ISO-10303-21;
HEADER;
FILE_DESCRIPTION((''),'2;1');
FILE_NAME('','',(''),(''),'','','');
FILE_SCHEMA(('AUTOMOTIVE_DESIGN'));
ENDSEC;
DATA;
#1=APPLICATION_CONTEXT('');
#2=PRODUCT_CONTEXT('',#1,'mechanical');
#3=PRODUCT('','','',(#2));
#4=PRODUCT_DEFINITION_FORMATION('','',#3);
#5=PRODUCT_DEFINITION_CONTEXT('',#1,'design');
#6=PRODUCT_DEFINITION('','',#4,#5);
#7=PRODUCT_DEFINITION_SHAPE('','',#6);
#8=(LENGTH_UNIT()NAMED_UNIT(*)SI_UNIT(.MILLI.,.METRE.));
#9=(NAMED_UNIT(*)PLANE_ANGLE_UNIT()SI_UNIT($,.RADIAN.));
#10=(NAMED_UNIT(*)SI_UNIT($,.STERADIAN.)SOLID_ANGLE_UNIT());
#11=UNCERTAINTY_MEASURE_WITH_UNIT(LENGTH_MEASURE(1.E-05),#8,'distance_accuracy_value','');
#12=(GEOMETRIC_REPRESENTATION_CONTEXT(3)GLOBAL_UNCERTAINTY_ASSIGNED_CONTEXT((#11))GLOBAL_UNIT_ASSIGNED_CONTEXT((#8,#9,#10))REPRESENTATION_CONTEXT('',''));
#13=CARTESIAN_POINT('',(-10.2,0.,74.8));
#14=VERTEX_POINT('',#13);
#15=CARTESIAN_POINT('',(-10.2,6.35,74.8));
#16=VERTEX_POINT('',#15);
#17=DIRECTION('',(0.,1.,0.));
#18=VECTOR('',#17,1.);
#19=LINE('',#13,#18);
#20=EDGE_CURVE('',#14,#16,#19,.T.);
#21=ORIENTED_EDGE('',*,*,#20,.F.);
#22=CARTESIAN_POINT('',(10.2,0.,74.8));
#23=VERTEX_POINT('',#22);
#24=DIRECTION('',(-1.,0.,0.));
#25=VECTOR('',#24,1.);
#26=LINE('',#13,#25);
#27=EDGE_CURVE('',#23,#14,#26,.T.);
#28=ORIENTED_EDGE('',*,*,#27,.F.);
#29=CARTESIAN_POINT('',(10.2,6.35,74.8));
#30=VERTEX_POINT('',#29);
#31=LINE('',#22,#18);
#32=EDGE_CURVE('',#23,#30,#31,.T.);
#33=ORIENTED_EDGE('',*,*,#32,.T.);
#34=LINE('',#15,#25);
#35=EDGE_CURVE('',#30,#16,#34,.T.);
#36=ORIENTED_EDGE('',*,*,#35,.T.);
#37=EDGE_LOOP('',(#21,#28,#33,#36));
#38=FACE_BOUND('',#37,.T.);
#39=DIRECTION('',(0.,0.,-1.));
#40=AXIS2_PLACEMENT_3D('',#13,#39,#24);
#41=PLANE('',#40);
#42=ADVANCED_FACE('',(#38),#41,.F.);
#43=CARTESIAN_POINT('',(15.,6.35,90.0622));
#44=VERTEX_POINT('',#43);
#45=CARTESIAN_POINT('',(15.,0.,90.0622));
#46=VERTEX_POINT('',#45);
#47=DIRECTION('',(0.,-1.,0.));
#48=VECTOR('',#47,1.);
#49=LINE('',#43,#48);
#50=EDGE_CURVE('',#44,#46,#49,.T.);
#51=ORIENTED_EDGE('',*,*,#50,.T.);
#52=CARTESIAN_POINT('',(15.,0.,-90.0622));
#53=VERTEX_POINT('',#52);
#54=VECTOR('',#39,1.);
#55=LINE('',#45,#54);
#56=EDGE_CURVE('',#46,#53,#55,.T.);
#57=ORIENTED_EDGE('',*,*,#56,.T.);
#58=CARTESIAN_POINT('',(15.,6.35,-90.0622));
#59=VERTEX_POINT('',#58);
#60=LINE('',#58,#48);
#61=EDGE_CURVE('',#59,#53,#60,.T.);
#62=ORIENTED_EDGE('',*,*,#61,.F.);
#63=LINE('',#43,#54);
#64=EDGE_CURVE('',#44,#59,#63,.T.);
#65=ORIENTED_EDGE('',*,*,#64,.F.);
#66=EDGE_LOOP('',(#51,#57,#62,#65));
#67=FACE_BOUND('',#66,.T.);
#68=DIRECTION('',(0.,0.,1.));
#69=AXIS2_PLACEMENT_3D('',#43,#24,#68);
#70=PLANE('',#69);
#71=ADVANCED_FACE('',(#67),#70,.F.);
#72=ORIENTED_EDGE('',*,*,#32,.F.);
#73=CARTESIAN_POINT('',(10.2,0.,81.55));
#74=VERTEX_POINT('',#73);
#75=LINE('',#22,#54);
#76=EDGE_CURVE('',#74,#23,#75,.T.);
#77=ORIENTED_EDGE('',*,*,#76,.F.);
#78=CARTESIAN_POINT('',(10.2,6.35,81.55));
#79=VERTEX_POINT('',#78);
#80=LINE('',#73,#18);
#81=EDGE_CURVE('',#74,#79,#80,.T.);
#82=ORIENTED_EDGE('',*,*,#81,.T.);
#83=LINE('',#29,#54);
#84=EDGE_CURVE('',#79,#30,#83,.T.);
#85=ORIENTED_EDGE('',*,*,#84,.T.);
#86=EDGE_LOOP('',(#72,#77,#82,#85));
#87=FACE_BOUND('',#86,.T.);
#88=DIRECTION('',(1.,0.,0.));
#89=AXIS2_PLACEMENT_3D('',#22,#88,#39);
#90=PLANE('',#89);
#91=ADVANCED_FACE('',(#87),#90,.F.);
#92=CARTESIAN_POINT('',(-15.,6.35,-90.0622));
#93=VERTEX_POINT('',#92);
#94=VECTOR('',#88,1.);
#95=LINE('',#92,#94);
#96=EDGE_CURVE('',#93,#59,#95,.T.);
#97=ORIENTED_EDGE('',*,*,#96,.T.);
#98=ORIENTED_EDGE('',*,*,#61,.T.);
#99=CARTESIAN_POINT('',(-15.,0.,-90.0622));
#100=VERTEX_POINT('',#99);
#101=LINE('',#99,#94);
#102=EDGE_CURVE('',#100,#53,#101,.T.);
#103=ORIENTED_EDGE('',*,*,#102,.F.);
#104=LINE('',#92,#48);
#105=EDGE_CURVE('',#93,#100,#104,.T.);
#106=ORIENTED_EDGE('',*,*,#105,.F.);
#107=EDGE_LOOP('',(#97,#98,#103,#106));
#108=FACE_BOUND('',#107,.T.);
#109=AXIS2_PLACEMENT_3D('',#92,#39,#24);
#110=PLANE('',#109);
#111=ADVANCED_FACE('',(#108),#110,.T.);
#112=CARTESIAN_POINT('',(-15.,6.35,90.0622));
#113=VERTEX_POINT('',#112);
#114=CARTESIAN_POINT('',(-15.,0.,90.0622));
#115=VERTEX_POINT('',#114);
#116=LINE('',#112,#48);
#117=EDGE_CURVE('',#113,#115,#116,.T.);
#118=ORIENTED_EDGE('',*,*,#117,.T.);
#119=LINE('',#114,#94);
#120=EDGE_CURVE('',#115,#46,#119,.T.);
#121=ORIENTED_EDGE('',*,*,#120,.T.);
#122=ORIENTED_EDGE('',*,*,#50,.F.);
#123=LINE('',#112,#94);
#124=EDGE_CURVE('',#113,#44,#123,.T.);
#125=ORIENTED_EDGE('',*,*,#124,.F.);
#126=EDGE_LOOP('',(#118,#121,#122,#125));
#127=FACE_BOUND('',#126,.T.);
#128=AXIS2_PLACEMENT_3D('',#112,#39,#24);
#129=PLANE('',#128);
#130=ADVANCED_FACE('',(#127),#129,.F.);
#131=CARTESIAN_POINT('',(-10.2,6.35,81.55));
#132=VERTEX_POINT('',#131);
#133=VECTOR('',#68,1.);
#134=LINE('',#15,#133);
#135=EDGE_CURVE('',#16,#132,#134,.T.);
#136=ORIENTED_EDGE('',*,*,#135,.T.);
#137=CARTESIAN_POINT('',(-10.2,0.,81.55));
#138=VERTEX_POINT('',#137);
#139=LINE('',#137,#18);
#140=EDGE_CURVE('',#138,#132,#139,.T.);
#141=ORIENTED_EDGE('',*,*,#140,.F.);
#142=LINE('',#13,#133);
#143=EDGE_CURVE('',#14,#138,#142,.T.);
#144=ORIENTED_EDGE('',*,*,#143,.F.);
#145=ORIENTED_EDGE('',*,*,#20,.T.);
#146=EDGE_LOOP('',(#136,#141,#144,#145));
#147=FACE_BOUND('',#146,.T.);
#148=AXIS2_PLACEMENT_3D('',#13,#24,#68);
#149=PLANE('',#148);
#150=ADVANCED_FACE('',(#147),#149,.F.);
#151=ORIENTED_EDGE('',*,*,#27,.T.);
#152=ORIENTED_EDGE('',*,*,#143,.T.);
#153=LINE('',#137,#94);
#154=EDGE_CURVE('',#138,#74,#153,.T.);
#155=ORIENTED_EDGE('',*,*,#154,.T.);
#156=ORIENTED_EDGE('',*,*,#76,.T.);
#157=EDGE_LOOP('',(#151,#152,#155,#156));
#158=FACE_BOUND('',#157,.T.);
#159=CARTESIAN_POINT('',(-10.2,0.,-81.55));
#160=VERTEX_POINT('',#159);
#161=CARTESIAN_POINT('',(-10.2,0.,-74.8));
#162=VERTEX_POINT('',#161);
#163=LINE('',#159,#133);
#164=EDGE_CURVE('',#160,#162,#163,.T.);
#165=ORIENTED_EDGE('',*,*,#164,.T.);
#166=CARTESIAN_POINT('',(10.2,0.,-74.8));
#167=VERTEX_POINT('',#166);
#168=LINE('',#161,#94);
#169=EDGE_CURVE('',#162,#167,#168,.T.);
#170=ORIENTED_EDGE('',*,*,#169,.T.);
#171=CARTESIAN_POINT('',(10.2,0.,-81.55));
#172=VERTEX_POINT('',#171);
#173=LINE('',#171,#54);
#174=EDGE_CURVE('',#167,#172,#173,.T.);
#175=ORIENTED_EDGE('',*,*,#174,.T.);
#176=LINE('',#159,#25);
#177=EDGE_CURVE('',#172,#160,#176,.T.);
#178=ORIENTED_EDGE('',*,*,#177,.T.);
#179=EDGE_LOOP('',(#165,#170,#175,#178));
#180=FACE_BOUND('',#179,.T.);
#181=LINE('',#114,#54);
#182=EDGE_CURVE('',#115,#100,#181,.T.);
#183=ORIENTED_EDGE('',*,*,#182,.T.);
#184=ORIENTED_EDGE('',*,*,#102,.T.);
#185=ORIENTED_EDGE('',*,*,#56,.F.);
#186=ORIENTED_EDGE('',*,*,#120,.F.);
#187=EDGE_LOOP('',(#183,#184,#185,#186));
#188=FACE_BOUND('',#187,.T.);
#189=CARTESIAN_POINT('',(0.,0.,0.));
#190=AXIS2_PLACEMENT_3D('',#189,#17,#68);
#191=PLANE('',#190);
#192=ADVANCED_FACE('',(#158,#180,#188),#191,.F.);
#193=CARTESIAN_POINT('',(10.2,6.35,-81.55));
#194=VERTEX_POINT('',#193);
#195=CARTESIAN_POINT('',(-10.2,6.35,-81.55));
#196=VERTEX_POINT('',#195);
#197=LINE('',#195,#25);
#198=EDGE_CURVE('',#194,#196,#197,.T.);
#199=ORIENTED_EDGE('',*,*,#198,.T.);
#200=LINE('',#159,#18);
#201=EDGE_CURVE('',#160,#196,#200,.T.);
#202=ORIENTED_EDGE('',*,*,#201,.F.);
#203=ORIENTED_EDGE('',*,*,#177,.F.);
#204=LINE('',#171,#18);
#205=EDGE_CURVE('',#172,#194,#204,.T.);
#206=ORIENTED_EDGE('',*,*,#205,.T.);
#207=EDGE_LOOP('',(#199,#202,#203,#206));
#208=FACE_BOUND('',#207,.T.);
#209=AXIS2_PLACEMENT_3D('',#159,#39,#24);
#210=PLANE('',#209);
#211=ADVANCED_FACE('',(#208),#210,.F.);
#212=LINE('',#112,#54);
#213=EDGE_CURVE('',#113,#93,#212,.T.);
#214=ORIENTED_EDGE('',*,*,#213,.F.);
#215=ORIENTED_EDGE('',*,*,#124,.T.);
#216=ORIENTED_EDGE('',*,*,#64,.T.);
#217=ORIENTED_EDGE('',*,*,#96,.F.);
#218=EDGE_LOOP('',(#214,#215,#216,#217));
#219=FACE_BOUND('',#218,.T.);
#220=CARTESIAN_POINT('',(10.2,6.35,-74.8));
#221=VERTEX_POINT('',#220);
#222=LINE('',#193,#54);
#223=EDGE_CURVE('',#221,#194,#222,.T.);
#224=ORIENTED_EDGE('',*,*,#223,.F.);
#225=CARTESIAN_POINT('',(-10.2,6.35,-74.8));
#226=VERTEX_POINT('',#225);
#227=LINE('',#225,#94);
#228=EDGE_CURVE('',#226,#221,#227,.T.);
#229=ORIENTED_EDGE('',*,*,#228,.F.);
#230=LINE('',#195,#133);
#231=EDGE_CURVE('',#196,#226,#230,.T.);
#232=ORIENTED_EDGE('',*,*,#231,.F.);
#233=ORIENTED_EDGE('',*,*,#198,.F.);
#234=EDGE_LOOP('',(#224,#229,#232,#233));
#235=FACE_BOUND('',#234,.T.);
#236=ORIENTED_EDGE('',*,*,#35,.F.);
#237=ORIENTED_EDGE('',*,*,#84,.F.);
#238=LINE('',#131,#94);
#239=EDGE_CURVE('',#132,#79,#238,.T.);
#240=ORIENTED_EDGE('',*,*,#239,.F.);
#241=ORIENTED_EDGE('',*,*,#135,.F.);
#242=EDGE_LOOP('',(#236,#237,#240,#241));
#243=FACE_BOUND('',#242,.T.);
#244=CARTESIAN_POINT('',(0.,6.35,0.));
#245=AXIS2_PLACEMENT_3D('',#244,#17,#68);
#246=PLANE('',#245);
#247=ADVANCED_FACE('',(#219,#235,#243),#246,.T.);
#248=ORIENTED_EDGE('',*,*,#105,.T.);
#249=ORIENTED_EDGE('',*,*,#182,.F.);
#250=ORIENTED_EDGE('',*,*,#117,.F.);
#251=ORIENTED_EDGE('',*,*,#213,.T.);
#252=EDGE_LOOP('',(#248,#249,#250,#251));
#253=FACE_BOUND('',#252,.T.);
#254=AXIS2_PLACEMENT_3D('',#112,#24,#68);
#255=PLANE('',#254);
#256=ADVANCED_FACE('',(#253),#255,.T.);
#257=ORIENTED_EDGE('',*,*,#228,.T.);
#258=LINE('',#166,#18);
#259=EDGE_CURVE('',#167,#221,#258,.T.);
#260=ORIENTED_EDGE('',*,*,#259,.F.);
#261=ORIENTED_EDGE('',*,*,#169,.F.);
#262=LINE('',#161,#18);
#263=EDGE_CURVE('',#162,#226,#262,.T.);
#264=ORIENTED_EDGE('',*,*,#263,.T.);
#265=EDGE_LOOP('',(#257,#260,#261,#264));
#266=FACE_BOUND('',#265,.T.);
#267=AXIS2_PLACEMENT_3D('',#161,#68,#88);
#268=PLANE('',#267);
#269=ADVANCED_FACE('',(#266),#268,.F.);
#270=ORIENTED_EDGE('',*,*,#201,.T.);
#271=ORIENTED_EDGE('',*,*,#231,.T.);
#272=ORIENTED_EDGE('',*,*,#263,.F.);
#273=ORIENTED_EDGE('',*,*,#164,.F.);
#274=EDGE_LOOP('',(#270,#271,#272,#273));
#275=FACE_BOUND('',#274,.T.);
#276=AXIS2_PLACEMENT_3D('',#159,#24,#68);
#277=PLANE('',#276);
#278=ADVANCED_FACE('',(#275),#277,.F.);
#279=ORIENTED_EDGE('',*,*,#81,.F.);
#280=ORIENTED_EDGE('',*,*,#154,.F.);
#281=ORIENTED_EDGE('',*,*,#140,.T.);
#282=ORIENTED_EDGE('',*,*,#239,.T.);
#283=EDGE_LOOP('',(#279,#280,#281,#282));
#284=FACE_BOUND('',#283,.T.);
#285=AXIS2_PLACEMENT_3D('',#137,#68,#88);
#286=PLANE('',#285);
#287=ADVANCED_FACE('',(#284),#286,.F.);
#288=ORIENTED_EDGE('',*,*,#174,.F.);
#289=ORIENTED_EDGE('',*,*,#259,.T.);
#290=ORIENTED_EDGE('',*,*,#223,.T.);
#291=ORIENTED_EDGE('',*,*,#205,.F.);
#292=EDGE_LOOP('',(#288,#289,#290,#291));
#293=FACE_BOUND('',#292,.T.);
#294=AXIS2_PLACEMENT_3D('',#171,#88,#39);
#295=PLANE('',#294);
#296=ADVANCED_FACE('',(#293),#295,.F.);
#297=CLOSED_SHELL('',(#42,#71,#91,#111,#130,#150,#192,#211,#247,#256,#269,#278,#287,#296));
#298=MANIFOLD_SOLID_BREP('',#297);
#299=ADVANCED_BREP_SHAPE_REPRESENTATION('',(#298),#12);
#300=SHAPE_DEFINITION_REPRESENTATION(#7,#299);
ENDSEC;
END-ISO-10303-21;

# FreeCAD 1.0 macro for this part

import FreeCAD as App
import Part
import Sketcher

V = App.Vector


def add_polygon(sketch, points):
    """Adds a closed chain of lines whose ends are joined by coincident constraints."""
    first, n = sketch.GeometryCount, len(points)
    for a, b in zip(points, points[1:] + points[:1]):
        sketch.addGeometry(Part.LineSegment(App.Vector(*a, 0), App.Vector(*b, 0)), False)
    for i in range(n):
        sketch.addConstraint(Sketcher.Constraint("Coincident", first + i, 2, first + (i + 1) % n, 1))

doc = App.newDocument("Part")
body = doc.addObject("PartDesign::Body", "Body")

sketch1 = doc.addObject("Sketcher::SketchObject", "Sketch")
body.addObject(sketch1)
sketch1.AttachmentSupport = (doc.XZ_Plane, [""])
sketch1.MapMode = "FlatFace"
add_polygon(sketch1, [(-15, -90.0622), (-15, 90.0622), (15, 90.0622), (15, -90.0622)])
sketch1.addConstraint(Sketcher.Constraint("Vertical", 0))
sketch1.addConstraint(Sketcher.Constraint("Horizontal", 1))
sketch1.addConstraint(Sketcher.Constraint("Vertical", 2))
sketch1.addConstraint(Sketcher.Constraint("Horizontal", 3))
sketch1.addConstraint(Sketcher.Constraint("Symmetric", 0, 2, 2, 2, -1, 1))
sketch1.addConstraint(Sketcher.Constraint("DistanceX", 1, 1, 1, 2, 30.0))
sketch1.addConstraint(Sketcher.Constraint("DistanceY", 0, 1, 0, 2, 180.1244))
pad1 = doc.addObject("PartDesign::Pad", "Pad")
body.addObject(pad1)
pad1.Profile = sketch1
pad1.Length = 6.35
pad1.Reversed = True

sketch2 = doc.addObject("Sketcher::SketchObject", "Sketch001")
body.addObject(sketch2)
sketch2.AttachmentSupport = (doc.XZ_Plane, [""])
sketch2.MapMode = "FlatFace"
sketch2.AttachmentOffset = App.Placement(V(0, 0, -6.35), App.Rotation())
add_polygon(sketch2, [(-10.2, -81.55), (-10.2, -74.8), (10.2, -74.8), (10.2, -81.55)])
add_polygon(sketch2, [(-10.2, 74.8), (-10.2, 81.55), (10.2, 81.55), (10.2, 74.8)])
sketch2.addConstraint(Sketcher.Constraint("Vertical", 0))
sketch2.addConstraint(Sketcher.Constraint("Horizontal", 1))
sketch2.addConstraint(Sketcher.Constraint("Vertical", 2))
sketch2.addConstraint(Sketcher.Constraint("Horizontal", 3))
sketch2.addConstraint(Sketcher.Constraint("Vertical", 4))
sketch2.addConstraint(Sketcher.Constraint("Horizontal", 5))
sketch2.addConstraint(Sketcher.Constraint("Vertical", 6))
sketch2.addConstraint(Sketcher.Constraint("Horizontal", 7))
sketch2.addConstraint(Sketcher.Constraint("Symmetric", 2, 2, 4, 2, -1, 1))
sketch2.addConstraint(Sketcher.Constraint("Symmetric", 0, 2, 6, 2, -1, 1))
sketch2.addConstraint(Sketcher.Constraint("Vertical", 3, 2, 4, 2))
sketch2.addConstraint(Sketcher.Constraint("DistanceX", 1, 1, 1, 2, 20.4))
sketch2.addConstraint(Sketcher.Constraint("DistanceY", 0, 1, 0, 2, 6.75))
sketch2.addConstraint(Sketcher.Constraint("DistanceY", 0, 2, -1, 1, 74.8))
pocket1 = doc.addObject("PartDesign::Pocket", "Pocket")
body.addObject(pocket1)
pocket1.Profile = sketch2
pocket1.Length = 6.35
pocket1.Reversed = True

doc.recompute()
